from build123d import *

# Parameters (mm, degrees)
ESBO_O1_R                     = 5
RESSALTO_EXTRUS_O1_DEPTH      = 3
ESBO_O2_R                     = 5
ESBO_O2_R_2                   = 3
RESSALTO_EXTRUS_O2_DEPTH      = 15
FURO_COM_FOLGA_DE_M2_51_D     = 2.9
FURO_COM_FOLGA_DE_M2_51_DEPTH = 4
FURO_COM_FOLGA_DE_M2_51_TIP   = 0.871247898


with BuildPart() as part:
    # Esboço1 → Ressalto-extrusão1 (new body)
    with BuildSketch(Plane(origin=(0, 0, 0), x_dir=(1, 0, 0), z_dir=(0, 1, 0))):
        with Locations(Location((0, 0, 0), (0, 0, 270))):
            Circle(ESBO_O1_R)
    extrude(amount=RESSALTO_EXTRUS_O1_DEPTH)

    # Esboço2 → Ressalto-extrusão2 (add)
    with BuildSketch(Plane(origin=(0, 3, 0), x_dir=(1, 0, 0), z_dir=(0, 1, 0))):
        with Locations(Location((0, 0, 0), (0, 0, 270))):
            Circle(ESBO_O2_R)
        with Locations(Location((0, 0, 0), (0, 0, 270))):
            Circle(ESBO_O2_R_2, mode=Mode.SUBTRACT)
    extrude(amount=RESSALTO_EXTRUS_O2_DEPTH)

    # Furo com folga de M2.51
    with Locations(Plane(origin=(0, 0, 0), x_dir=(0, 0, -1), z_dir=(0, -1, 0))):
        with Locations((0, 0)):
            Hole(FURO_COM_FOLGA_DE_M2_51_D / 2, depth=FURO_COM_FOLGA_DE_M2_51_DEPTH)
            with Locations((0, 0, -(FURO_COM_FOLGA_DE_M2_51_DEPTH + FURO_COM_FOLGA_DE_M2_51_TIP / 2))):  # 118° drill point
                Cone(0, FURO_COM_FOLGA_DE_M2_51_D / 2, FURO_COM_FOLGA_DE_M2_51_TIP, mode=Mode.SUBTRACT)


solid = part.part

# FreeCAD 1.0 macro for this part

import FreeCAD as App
import Part
import Sketcher
Q = App.Units.Quantity

doc = App.newDocument("Part")
params = doc.addObject("Spreadsheet::Sheet", "Params")
for row, (alias, value) in enumerate([
    ("sketch1_diameter", "10 mm"),
    ("pad1_length", "3 mm"),
    ("sketch2_diameter", "10 mm"),
    ("sketch2_diameter2", "6 mm"),
    ("pad2_length", "15 mm"),
    ("sketch3_diameter", "2.9 mm"),
    ("hole_diameter", "2.9 mm"),
    ("hole_depth", "4 mm"),
], start=1):
    params.set(f"A{row}", alias)
    params.set(f"B{row}", "=" + value)
    params.setAlias(f"B{row}", alias)

body = doc.addObject("PartDesign::Body", "Body")

# Sketch on XZ plane
sketch1 = doc.addObject("Sketcher::SketchObject", "Sketch")
body.addObject(sketch1)
sketch1.AttachmentSupport = (doc.XZ_Plane, [""])
sketch1.MapMode = "FlatFace"
sketch1.addGeometry(Part.Circle(App.Vector(0, 0, 0), App.Vector(0, 0, 1), 5), False)
sketch1.addConstraint([
    Sketcher.Constraint("Coincident", 0, 3, -1, 1),
    Sketcher.Constraint("Diameter", 0, Q("10 mm")),
])
sketch1.setExpression("Constraints[1]", "Params.sketch1_diameter")
pad1 = doc.addObject("PartDesign::Pad", "Pad")
body.addObject(pad1)
pad1.Profile = sketch1
pad1.setExpression("Length", "Params.pad1_length")
pad1.Reversed = True

# Sketch on XZ plane
sketch2 = doc.addObject("Sketcher::SketchObject", "Sketch001")
body.addObject(sketch2)
sketch2.AttachmentSupport = (doc.XZ_Plane, [""])
sketch2.MapMode = "FlatFace"
sketch2.AttachmentOffset = App.Placement(App.Vector(0, 0, -3), App.Rotation())
sketch2.addGeometry([
    Part.Circle(App.Vector(0, 0, 0), App.Vector(0, 0, 1), 5),
    Part.Circle(App.Vector(0, 0, 0), App.Vector(0, 0, 1), 3),
], False)
sketch2.addConstraint([
    Sketcher.Constraint("Coincident", 0, 3, -1, 1),
    Sketcher.Constraint("Coincident", 1, 3, -1, 1),
    Sketcher.Constraint("Diameter", 0, Q("10 mm")),
    Sketcher.Constraint("Diameter", 1, Q("6 mm")),
])
sketch2.setExpression("Constraints[2]", "Params.sketch2_diameter")
sketch2.setExpression("Constraints[3]", "Params.sketch2_diameter2")
pad2 = doc.addObject("PartDesign::Pad", "Pad001")
body.addObject(pad2)
pad2.Profile = sketch2
pad2.setExpression("Length", "Params.pad2_length")
pad2.Reversed = True

# Sketch on XZ plane
sketch3 = doc.addObject("Sketcher::SketchObject", "Sketch002")
body.addObject(sketch3)
sketch3.AttachmentSupport = (doc.XZ_Plane, [""])
sketch3.MapMode = "FlatFace"
sketch3.addGeometry(Part.Circle(App.Vector(0, 0, 0), App.Vector(0, 0, 1), 1.4), False)
sketch3.addConstraint([
    Sketcher.Constraint("Coincident", 0, 3, -1, 1),
    Sketcher.Constraint("Diameter", 0, Q("2.9 mm")),
])
sketch3.setExpression("Constraints[1]", "Params.sketch3_diameter")
doc.recompute()
hole = doc.addObject("PartDesign::Hole", "Hole")
body.addObject(hole)
hole.Profile = sketch3
hole.ThreadType = "None"
hole.setExpression("Diameter", "Params.hole_diameter")
hole.DepthType = "Dimension"
hole.setExpression("Depth", "Params.hole_depth")
hole.DrillPoint = "Angled"
hole.DrillPointAngle = 118

doc.recompute()
